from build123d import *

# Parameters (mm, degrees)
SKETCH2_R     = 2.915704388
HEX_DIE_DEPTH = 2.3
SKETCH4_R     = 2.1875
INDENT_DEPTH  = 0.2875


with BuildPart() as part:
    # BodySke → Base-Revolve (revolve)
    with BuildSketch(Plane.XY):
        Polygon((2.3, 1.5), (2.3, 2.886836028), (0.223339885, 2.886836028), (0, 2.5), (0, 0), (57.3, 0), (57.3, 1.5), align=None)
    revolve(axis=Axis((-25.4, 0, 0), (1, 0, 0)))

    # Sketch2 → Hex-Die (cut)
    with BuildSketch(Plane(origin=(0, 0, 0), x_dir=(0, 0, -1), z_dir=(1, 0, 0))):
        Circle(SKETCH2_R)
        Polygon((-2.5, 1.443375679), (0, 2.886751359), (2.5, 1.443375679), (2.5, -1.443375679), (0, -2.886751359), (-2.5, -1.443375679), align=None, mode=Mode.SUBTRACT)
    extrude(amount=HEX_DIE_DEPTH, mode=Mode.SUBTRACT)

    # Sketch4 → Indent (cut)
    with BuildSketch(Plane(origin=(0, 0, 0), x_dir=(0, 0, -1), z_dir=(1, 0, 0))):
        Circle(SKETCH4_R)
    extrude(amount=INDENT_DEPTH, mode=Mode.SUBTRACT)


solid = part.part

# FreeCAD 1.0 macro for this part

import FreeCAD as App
import Part
import Sketcher

V = App.Vector
Q = App.Units.Quantity

doc = App.newDocument("Part")
params = doc.addObject("Spreadsheet::Sheet", "Params")
for row, (alias, value) in enumerate([
    ("sketch1_width", "55 mm"),
    ("sketch1_width2", "57.3 mm"),
    ("sketch1_height", "2.5 mm"),
    ("sketch1_height2", "1.5 mm"),
    ("revolution_angle", "360 deg"),
    ("pocket1_length", "2.3 mm"),
    ("pocket2_length", "0.2875 mm"),
], start=1):
    params.set(f"A{row}", alias)
    params.set(f"B{row}", "=" + value)
    params.setAlias(f"B{row}", alias)

body = doc.addObject("PartDesign::Body", "Body")

# Sketch on XY plane
sketch1 = body.newObject("Sketcher::SketchObject", "Sketch")
sketch1.AttachmentSupport = (doc.getObject("XY_Plane"), [""])
sketch1.MapMode = "FlatFace"
sketch1.addGeometry([
    Part.LineSegment(V(2.3, 1.5, 0), V(2.3, 2.89, 0)),  # 0
    Part.LineSegment(V(2.3, 2.89, 0), V(0.22, 2.89, 0)),  # 1
    Part.LineSegment(V(0.22, 2.89, 0), V(0, 2.5, 0)),  # 2
    Part.LineSegment(V(0, 2.5, 0), V(0, 0, 0)),  # 3
    Part.LineSegment(V(0, 0, 0), V(57.3, 0, 0)),  # 4
    Part.LineSegment(V(57.3, 0, 0), V(57.3, 1.5, 0)),  # 5
    Part.LineSegment(V(57.3, 1.5, 0), V(2.3, 1.5, 0)),  # 6
], False)
sketch1.addConstraint([
    Sketcher.Constraint("Coincident", 0, 2, 1, 1),
    Sketcher.Constraint("Coincident", 1, 2, 2, 1),
    Sketcher.Constraint("Coincident", 2, 2, 3, 1),
    Sketcher.Constraint("Coincident", 3, 2, 4, 1),
    Sketcher.Constraint("Coincident", 4, 2, 5, 1),
    Sketcher.Constraint("Coincident", 5, 2, 6, 1),
    Sketcher.Constraint("Coincident", 6, 2, 0, 1),
    Sketcher.Constraint("Vertical", 0),
    Sketcher.Constraint("Horizontal", 1),
    Sketcher.Constraint("Vertical", 3),
    Sketcher.Constraint("Horizontal", 4),
    Sketcher.Constraint("Vertical", 5),
    Sketcher.Constraint("Horizontal", 6),
    Sketcher.Constraint("Coincident", 3, 2, -1, 1),
    Sketcher.Constraint("DistanceX", 6, 2, 6, 1, Q("55 mm")),
    Sketcher.Constraint("Angle", 2, Q("-120 deg")),
    Sketcher.Constraint("DistanceX", 4, 1, 4, 2, Q("57.3 mm")),
    Sketcher.Constraint("DistanceY", 3, 2, 3, 1, Q("2.5 mm")),
    Sketcher.Constraint("DistanceY", 5, 1, 5, 2, Q("1.5 mm")),
    Sketcher.Constraint("DistanceX", 1, 2, 1, 1, Q("2.07666 mm")),
])
sketch1.setExpression("Constraints[14]", "Params.sketch1_width")
sketch1.setExpression("Constraints[16]", "Params.sketch1_width2")
sketch1.setExpression("Constraints[17]", "Params.sketch1_height")
sketch1.setExpression("Constraints[18]", "Params.sketch1_height2")
revolution = body.newObject("PartDesign::Revolution", "Revolution")
revolution.Profile = sketch1
revolution.ReferenceAxis = (sketch1, ["H_Axis"])
revolution.setExpression("Angle", "Params.revolution_angle")

# Sketch on YZ plane
sketch2 = body.newObject("Sketcher::SketchObject", "Sketch001")
sketch2.AttachmentSupport = (doc.getObject("YZ_Plane"), [""])
sketch2.MapMode = "FlatFace"
sketch2.addGeometry([
    Part.Circle(V(0, 0, 0), V(0, 0, 1), 2.9),  # 0
    Part.LineSegment(V(-1.4, 2.5, 0), V(1.4, 2.5, 0)),  # 1
    Part.LineSegment(V(1.4, 2.5, 0), V(2.9, 0, 0)),  # 2
    Part.LineSegment(V(2.9, 0, 0), V(1.4, -2.5, 0)),  # 3
    Part.LineSegment(V(1.4, -2.5, 0), V(-1.4, -2.5, 0)),  # 4
    Part.LineSegment(V(-1.4, -2.5, 0), V(-2.9, 0, 0)),  # 5
    Part.LineSegment(V(-2.9, 0, 0), V(-1.4, 2.5, 0)),  # 6
], False)
sketch2.addConstraint([
    Sketcher.Constraint("Coincident", 1, 2, 2, 1),
    Sketcher.Constraint("Coincident", 2, 2, 3, 1),
    Sketcher.Constraint("Coincident", 3, 2, 4, 1),
    Sketcher.Constraint("Coincident", 4, 2, 5, 1),
    Sketcher.Constraint("Coincident", 5, 2, 6, 1),
    Sketcher.Constraint("Coincident", 6, 2, 1, 1),
    Sketcher.Constraint("Horizontal", 1),
    Sketcher.Constraint("Horizontal", 4),
    Sketcher.Constraint("Coincident", 0, 3, -1, 1),
    Sketcher.Constraint("Symmetric", 1, 2, 4, 2, -1, 1),
    Sketcher.Constraint("Symmetric", 2, 2, 5, 2, -1, 1),
    Sketcher.Constraint("PointOnObject", 2, 2, -1),
    Sketcher.Constraint("Parallel", 3, 6),
    Sketcher.Constraint("Vertical", 1, 2, 3, 2),
    Sketcher.Constraint("Angle", 2, Q("-60 deg")),
    Sketcher.Constraint("DistanceY", 3, 2, 1, 2, Q("5 mm")),
    Sketcher.Constraint("Diameter", 0, Q("5.831409 mm")),
    Sketcher.Constraint("DistanceX", 1, 1, 1, 2, Q("2.886751 mm")),
])
pocket1 = body.newObject("PartDesign::Pocket", "Pocket")
pocket1.Profile = sketch2
pocket1.setExpression("Length", "Params.pocket1_length")
pocket1.Reversed = True

# Sketch on YZ plane
sketch3 = body.newObject("Sketcher::SketchObject", "Sketch002")
sketch3.AttachmentSupport = (doc.getObject("YZ_Plane"), [""])
sketch3.MapMode = "FlatFace"
sketch3.addGeometry(Part.Circle(V(0, 0, 0), V(0, 0, 1), 2.2), False)
sketch3.addConstraint([
    Sketcher.Constraint("Coincident", 0, 3, -1, 1),
    Sketcher.Constraint("Diameter", 0, Q("4.375 mm")),
])
pocket2 = body.newObject("PartDesign::Pocket", "Pocket001")
pocket2.Profile = sketch3
pocket2.setExpression("Length", "Params.pocket2_length")
pocket2.Reversed = True

doc.recompute()
